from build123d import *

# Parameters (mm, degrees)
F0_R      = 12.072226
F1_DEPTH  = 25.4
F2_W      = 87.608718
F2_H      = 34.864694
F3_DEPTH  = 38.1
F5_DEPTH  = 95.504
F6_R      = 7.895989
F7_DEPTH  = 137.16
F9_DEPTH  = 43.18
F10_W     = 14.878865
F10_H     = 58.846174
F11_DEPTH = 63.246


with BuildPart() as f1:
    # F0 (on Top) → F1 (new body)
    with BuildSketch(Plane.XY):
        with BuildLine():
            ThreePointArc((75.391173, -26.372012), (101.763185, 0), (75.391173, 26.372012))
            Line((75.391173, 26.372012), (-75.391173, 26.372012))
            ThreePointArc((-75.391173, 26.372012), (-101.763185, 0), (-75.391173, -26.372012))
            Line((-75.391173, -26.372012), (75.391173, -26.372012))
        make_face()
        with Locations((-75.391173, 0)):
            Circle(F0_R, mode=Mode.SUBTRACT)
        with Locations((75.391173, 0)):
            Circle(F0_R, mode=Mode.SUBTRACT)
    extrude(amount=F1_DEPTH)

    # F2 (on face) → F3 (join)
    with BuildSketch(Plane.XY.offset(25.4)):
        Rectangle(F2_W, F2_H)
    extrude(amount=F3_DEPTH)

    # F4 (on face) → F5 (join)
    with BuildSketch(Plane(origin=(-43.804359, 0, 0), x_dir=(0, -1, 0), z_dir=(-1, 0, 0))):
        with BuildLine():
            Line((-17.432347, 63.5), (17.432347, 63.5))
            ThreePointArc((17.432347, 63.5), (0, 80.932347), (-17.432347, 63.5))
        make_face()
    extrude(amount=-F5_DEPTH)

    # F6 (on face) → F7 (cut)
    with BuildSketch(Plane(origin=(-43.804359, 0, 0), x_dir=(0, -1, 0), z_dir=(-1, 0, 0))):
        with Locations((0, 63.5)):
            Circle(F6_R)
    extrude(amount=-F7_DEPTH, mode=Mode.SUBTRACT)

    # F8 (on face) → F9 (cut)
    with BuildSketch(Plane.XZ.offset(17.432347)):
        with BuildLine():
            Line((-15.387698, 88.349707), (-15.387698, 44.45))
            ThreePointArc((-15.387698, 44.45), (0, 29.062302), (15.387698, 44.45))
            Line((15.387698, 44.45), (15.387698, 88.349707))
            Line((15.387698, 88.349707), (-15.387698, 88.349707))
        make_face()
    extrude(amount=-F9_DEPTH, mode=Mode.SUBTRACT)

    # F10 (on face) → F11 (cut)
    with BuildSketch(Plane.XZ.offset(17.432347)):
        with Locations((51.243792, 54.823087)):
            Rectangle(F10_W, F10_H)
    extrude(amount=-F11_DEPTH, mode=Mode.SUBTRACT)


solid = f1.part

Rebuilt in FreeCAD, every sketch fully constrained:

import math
import FreeCAD as App
import Part
import Sketcher

V = App.Vector
Q = App.Units.Quantity

doc = App.newDocument("Part")
body = doc.addObject("PartDesign::Body", "Body")

# Sketch on XY plane
sketch1 = body.newObject("Sketcher::SketchObject", "Sketch")
sketch1.AttachmentSupport = (doc.getObject("XY_Plane"), [""])
sketch1.MapMode = "FlatFace"
sketch1.addGeometry(Part.ArcOfCircle(Part.Circle(V(75, 0, 0), V(0, 0, 1), 26), math.radians(-90), math.radians(90)), False)
sketch1.addGeometry(Part.LineSegment(V(75, 26, 0), V(-75, 26, 0)), False)
sketch1.addGeometry(Part.ArcOfCircle(Part.Circle(V(-75, 0, 0), V(0, 0, 1), 26), math.radians(90), math.radians(270)), False)
sketch1.addGeometry(Part.LineSegment(V(-75, -26, 0), V(75, -26, 0)), False)
sketch1.addGeometry(Part.Circle(V(-75, 0, 0), V(0, 0, 1), 12), False)
sketch1.addGeometry(Part.Circle(V(75, 0, 0), V(0, 0, 1), 12), False)
sketch1.addConstraint(Sketcher.Constraint("Tangent", 0, 2, 1, 1))
sketch1.addConstraint(Sketcher.Constraint("Tangent", 1, 2, 2, 1))
sketch1.addConstraint(Sketcher.Constraint("Tangent", 2, 2, 3, 1))
sketch1.addConstraint(Sketcher.Constraint("Tangent", 3, 2, 0, 1))
sketch1.addConstraint(Sketcher.Constraint("Horizontal", 1))
sketch1.addConstraint(Sketcher.Constraint("Horizontal", 3))
sketch1.addConstraint(Sketcher.Constraint("Coincident", 4, 3, 2, 3))
sketch1.addConstraint(Sketcher.Constraint("Coincident", 5, 3, 0, 3))
sketch1.addConstraint(Sketcher.Constraint("Equal", 4, 5))
sketch1.addConstraint(Sketcher.Constraint("Symmetric", 0, 3, 2, 3, -1, 1))
sketch1.addConstraint(Sketcher.Constraint("Diameter", 4, Q("24.144452 mm")))
sketch1.addConstraint(Sketcher.Constraint("Radius", 0, Q("26.372012 mm")))
sketch1.addConstraint(Sketcher.Constraint("DistanceX", 1, 2, 1, 1, Q("150.782346 mm")))
pad1 = body.newObject("PartDesign::Pad", "Pad")
pad1.Profile = sketch1
pad1.Length = Q("1 in")

# Sketch on XY plane
sketch2 = body.newObject("Sketcher::SketchObject", "Sketch001")
sketch2.AttachmentSupport = (doc.getObject("XY_Plane"), [""])
sketch2.MapMode = "FlatFace"
sketch2.AttachmentOffset = App.Placement(V(0, 0, 1 * 25.4), App.Rotation())
sketch2.addGeometry(Part.LineSegment(V(-44, 17, 0), V(-44, -17, 0)), False)
sketch2.addGeometry(Part.LineSegment(V(-44, -17, 0), V(44, -17, 0)), False)
sketch2.addGeometry(Part.LineSegment(V(44, -17, 0), V(44, 17, 0)), False)
sketch2.addGeometry(Part.LineSegment(V(44, 17, 0), V(-44, 17, 0)), False)
sketch2.addConstraint(Sketcher.Constraint("Coincident", 0, 2, 1, 1))
sketch2.addConstraint(Sketcher.Constraint("Coincident", 1, 2, 2, 1))
sketch2.addConstraint(Sketcher.Constraint("Coincident", 2, 2, 3, 1))
sketch2.addConstraint(Sketcher.Constraint("Coincident", 3, 2, 0, 1))
sketch2.addConstraint(Sketcher.Constraint("Vertical", 0))
sketch2.addConstraint(Sketcher.Constraint("Horizontal", 1))
sketch2.addConstraint(Sketcher.Constraint("Vertical", 2))
sketch2.addConstraint(Sketcher.Constraint("Horizontal", 3))
sketch2.addConstraint(Sketcher.Constraint("Symmetric", 0, 2, 2, 2, -1, 1))
sketch2.addConstraint(Sketcher.Constraint("DistanceX", 1, 1, 1, 2, Q("87.608718 mm")))
sketch2.addConstraint(Sketcher.Constraint("DistanceY", 0, 2, 0, 1, Q("34.864694 mm")))
pad2 = body.newObject("PartDesign::Pad", "Pad001")
pad2.Profile = sketch2
pad2.Length = Q("1.5 in")

# Sketch on YZ plane
sketch3 = body.newObject("Sketcher::SketchObject", "Sketch002")
sketch3.AttachmentSupport = (doc.getObject("YZ_Plane"), [""])
sketch3.MapMode = "FlatFace"
sketch3.AttachmentOffset = App.Placement(V(0, 0, -43.804359), App.Rotation())
sketch3.addGeometry(Part.LineSegment(V(17, 64, 0), V(-17, 64, 0)), False)
sketch3.addGeometry(Part.ArcOfCircle(Part.Circle(V(0, 64, 0), V(0, 0, 1), 17), math.radians(0), math.radians(180)), False)
sketch3.addConstraint(Sketcher.Constraint("Coincident", 0, 1, 1, 1))
sketch3.addConstraint(Sketcher.Constraint("Coincident", 1, 2, 0, 2))
sketch3.addConstraint(Sketcher.Constraint("Horizontal", 0))
sketch3.addConstraint(Sketcher.Constraint("PointOnObject", 1, 3, -2))
sketch3.addConstraint(Sketcher.Constraint("Horizontal", 1, 3, 0, 1))
sketch3.addConstraint(Sketcher.Constraint("DistanceY", -1, 1, 1, 3, Q("2.5 in")))
sketch3.addConstraint(Sketcher.Constraint("Radius", 1, Q("17.432347 mm")))
pad3 = body.newObject("PartDesign::Pad", "Pad002")
pad3.Profile = sketch3
pad3.Length = Q("3.76 in")

# Sketch on YZ plane
sketch4 = body.newObject("Sketcher::SketchObject", "Sketch003")
sketch4.AttachmentSupport = (doc.getObject("YZ_Plane"), [""])
sketch4.MapMode = "FlatFace"
sketch4.AttachmentOffset = App.Placement(V(0, 0, -43.804359), App.Rotation())
sketch4.addGeometry(Part.Circle(V(0, 64, 0), V(0, 0, 1), 8), False)
sketch4.addConstraint(Sketcher.Constraint("PointOnObject", 0, 3, -2))
sketch4.addConstraint(Sketcher.Constraint("DistanceY", -1, 1, 0, 3, Q("2.5 in")))
sketch4.addConstraint(Sketcher.Constraint("Diameter", 0, Q("15.791978 mm")))
pocket1 = body.newObject("PartDesign::Pocket", "Pocket")
pocket1.Profile = sketch4
pocket1.Length = Q("5.4 in")
pocket1.Reversed = True

# Sketch on XZ plane
sketch5 = body.newObject("Sketcher::SketchObject", "Sketch004")
sketch5.AttachmentSupport = (doc.getObject("XZ_Plane"), [""])
sketch5.MapMode = "FlatFace"
sketch5.AttachmentOffset = App.Placement(V(0, 0, 17.432347), App.Rotation())
sketch5.addGeometry(Part.LineSegment(V(-15, 88, 0), V(-15, 44, 0)), False)
sketch5.addGeometry(Part.ArcOfCircle(Part.Circle(V(0, 44, 0), V(0, 0, 1), 15), math.radians(180), math.radians(360)), False)
sketch5.addGeometry(Part.LineSegment(V(15, 44, 0), V(15, 88, 0)), False)
sketch5.addGeometry(Part.LineSegment(V(15, 88, 0), V(-15, 88, 0)), False)
sketch5.addConstraint(Sketcher.Constraint("Tangent", 0, 2, 1, 1))
sketch5.addConstraint(Sketcher.Constraint("Tangent", 1, 2, 2, 1))
sketch5.addConstraint(Sketcher.Constraint("Coincident", 2, 2, 3, 1))
sketch5.addConstraint(Sketcher.Constraint("Coincident", 3, 2, 0, 1))
sketch5.addConstraint(Sketcher.Constraint("Vertical", 0))
sketch5.addConstraint(Sketcher.Constraint("Vertical", 2))
sketch5.addConstraint(Sketcher.Constraint("Horizontal", 3))
sketch5.addConstraint(Sketcher.Constraint("PointOnObject", 1, 3, -2))
sketch5.addConstraint(Sketcher.Constraint("DistanceY", -1, 1, 1, 3, Q("1.75 in")))
sketch5.addConstraint(Sketcher.Constraint("Radius", 1, Q("15.387698 mm")))
sketch5.addConstraint(Sketcher.Constraint("DistanceY", 0, 2, 0, 1, Q("43.899707 mm")))
pocket2 = body.newObject("PartDesign::Pocket", "Pocket001")
pocket2.Profile = sketch5
pocket2.Length = Q("1.7 in")

# Sketch on XZ plane
sketch6 = body.newObject("Sketcher::SketchObject", "Sketch005")
sketch6.AttachmentSupport = (doc.getObject("XZ_Plane"), [""])
sketch6.MapMode = "FlatFace"
sketch6.AttachmentOffset = App.Placement(V(0, 0, 17.432347), App.Rotation())
sketch6.addGeometry(Part.LineSegment(V(44, 84, 0), V(44, 25, 0)), False)
sketch6.addGeometry(Part.LineSegment(V(44, 25, 0), V(59, 25, 0)), False)
sketch6.addGeometry(Part.LineSegment(V(59, 25, 0), V(59, 84, 0)), False)
sketch6.addGeometry(Part.LineSegment(V(59, 84, 0), V(44, 84, 0)), False)
sketch6.addConstraint(Sketcher.Constraint("Coincident", 0, 2, 1, 1))
sketch6.addConstraint(Sketcher.Constraint("Coincident", 1, 2, 2, 1))
sketch6.addConstraint(Sketcher.Constraint("Coincident", 2, 2, 3, 1))
sketch6.addConstraint(Sketcher.Constraint("Coincident", 3, 2, 0, 1))
sketch6.addConstraint(Sketcher.Constraint("Vertical", 0))
sketch6.addConstraint(Sketcher.Constraint("Horizontal", 1))
sketch6.addConstraint(Sketcher.Constraint("Vertical", 2))
sketch6.addConstraint(Sketcher.Constraint("Horizontal", 3))
sketch6.addConstraint(Sketcher.Constraint("DistanceY", -1, 1, 0, 2, Q("1 in")))
sketch6.addConstraint(Sketcher.Constraint("DistanceX", 1, 1, 1, 2, Q("14.878865 mm")))
sketch6.addConstraint(Sketcher.Constraint("DistanceY", 0, 2, 0, 1, Q("58.846174 mm")))
sketch6.addConstraint(Sketcher.Constraint("DistanceX", -1, 1, 0, 2, Q("43.804359 mm")))
pocket3 = body.newObject("PartDesign::Pocket", "Pocket002")
pocket3.Profile = sketch6
pocket3.Length = Q("2.49 in")

doc.recompute()
